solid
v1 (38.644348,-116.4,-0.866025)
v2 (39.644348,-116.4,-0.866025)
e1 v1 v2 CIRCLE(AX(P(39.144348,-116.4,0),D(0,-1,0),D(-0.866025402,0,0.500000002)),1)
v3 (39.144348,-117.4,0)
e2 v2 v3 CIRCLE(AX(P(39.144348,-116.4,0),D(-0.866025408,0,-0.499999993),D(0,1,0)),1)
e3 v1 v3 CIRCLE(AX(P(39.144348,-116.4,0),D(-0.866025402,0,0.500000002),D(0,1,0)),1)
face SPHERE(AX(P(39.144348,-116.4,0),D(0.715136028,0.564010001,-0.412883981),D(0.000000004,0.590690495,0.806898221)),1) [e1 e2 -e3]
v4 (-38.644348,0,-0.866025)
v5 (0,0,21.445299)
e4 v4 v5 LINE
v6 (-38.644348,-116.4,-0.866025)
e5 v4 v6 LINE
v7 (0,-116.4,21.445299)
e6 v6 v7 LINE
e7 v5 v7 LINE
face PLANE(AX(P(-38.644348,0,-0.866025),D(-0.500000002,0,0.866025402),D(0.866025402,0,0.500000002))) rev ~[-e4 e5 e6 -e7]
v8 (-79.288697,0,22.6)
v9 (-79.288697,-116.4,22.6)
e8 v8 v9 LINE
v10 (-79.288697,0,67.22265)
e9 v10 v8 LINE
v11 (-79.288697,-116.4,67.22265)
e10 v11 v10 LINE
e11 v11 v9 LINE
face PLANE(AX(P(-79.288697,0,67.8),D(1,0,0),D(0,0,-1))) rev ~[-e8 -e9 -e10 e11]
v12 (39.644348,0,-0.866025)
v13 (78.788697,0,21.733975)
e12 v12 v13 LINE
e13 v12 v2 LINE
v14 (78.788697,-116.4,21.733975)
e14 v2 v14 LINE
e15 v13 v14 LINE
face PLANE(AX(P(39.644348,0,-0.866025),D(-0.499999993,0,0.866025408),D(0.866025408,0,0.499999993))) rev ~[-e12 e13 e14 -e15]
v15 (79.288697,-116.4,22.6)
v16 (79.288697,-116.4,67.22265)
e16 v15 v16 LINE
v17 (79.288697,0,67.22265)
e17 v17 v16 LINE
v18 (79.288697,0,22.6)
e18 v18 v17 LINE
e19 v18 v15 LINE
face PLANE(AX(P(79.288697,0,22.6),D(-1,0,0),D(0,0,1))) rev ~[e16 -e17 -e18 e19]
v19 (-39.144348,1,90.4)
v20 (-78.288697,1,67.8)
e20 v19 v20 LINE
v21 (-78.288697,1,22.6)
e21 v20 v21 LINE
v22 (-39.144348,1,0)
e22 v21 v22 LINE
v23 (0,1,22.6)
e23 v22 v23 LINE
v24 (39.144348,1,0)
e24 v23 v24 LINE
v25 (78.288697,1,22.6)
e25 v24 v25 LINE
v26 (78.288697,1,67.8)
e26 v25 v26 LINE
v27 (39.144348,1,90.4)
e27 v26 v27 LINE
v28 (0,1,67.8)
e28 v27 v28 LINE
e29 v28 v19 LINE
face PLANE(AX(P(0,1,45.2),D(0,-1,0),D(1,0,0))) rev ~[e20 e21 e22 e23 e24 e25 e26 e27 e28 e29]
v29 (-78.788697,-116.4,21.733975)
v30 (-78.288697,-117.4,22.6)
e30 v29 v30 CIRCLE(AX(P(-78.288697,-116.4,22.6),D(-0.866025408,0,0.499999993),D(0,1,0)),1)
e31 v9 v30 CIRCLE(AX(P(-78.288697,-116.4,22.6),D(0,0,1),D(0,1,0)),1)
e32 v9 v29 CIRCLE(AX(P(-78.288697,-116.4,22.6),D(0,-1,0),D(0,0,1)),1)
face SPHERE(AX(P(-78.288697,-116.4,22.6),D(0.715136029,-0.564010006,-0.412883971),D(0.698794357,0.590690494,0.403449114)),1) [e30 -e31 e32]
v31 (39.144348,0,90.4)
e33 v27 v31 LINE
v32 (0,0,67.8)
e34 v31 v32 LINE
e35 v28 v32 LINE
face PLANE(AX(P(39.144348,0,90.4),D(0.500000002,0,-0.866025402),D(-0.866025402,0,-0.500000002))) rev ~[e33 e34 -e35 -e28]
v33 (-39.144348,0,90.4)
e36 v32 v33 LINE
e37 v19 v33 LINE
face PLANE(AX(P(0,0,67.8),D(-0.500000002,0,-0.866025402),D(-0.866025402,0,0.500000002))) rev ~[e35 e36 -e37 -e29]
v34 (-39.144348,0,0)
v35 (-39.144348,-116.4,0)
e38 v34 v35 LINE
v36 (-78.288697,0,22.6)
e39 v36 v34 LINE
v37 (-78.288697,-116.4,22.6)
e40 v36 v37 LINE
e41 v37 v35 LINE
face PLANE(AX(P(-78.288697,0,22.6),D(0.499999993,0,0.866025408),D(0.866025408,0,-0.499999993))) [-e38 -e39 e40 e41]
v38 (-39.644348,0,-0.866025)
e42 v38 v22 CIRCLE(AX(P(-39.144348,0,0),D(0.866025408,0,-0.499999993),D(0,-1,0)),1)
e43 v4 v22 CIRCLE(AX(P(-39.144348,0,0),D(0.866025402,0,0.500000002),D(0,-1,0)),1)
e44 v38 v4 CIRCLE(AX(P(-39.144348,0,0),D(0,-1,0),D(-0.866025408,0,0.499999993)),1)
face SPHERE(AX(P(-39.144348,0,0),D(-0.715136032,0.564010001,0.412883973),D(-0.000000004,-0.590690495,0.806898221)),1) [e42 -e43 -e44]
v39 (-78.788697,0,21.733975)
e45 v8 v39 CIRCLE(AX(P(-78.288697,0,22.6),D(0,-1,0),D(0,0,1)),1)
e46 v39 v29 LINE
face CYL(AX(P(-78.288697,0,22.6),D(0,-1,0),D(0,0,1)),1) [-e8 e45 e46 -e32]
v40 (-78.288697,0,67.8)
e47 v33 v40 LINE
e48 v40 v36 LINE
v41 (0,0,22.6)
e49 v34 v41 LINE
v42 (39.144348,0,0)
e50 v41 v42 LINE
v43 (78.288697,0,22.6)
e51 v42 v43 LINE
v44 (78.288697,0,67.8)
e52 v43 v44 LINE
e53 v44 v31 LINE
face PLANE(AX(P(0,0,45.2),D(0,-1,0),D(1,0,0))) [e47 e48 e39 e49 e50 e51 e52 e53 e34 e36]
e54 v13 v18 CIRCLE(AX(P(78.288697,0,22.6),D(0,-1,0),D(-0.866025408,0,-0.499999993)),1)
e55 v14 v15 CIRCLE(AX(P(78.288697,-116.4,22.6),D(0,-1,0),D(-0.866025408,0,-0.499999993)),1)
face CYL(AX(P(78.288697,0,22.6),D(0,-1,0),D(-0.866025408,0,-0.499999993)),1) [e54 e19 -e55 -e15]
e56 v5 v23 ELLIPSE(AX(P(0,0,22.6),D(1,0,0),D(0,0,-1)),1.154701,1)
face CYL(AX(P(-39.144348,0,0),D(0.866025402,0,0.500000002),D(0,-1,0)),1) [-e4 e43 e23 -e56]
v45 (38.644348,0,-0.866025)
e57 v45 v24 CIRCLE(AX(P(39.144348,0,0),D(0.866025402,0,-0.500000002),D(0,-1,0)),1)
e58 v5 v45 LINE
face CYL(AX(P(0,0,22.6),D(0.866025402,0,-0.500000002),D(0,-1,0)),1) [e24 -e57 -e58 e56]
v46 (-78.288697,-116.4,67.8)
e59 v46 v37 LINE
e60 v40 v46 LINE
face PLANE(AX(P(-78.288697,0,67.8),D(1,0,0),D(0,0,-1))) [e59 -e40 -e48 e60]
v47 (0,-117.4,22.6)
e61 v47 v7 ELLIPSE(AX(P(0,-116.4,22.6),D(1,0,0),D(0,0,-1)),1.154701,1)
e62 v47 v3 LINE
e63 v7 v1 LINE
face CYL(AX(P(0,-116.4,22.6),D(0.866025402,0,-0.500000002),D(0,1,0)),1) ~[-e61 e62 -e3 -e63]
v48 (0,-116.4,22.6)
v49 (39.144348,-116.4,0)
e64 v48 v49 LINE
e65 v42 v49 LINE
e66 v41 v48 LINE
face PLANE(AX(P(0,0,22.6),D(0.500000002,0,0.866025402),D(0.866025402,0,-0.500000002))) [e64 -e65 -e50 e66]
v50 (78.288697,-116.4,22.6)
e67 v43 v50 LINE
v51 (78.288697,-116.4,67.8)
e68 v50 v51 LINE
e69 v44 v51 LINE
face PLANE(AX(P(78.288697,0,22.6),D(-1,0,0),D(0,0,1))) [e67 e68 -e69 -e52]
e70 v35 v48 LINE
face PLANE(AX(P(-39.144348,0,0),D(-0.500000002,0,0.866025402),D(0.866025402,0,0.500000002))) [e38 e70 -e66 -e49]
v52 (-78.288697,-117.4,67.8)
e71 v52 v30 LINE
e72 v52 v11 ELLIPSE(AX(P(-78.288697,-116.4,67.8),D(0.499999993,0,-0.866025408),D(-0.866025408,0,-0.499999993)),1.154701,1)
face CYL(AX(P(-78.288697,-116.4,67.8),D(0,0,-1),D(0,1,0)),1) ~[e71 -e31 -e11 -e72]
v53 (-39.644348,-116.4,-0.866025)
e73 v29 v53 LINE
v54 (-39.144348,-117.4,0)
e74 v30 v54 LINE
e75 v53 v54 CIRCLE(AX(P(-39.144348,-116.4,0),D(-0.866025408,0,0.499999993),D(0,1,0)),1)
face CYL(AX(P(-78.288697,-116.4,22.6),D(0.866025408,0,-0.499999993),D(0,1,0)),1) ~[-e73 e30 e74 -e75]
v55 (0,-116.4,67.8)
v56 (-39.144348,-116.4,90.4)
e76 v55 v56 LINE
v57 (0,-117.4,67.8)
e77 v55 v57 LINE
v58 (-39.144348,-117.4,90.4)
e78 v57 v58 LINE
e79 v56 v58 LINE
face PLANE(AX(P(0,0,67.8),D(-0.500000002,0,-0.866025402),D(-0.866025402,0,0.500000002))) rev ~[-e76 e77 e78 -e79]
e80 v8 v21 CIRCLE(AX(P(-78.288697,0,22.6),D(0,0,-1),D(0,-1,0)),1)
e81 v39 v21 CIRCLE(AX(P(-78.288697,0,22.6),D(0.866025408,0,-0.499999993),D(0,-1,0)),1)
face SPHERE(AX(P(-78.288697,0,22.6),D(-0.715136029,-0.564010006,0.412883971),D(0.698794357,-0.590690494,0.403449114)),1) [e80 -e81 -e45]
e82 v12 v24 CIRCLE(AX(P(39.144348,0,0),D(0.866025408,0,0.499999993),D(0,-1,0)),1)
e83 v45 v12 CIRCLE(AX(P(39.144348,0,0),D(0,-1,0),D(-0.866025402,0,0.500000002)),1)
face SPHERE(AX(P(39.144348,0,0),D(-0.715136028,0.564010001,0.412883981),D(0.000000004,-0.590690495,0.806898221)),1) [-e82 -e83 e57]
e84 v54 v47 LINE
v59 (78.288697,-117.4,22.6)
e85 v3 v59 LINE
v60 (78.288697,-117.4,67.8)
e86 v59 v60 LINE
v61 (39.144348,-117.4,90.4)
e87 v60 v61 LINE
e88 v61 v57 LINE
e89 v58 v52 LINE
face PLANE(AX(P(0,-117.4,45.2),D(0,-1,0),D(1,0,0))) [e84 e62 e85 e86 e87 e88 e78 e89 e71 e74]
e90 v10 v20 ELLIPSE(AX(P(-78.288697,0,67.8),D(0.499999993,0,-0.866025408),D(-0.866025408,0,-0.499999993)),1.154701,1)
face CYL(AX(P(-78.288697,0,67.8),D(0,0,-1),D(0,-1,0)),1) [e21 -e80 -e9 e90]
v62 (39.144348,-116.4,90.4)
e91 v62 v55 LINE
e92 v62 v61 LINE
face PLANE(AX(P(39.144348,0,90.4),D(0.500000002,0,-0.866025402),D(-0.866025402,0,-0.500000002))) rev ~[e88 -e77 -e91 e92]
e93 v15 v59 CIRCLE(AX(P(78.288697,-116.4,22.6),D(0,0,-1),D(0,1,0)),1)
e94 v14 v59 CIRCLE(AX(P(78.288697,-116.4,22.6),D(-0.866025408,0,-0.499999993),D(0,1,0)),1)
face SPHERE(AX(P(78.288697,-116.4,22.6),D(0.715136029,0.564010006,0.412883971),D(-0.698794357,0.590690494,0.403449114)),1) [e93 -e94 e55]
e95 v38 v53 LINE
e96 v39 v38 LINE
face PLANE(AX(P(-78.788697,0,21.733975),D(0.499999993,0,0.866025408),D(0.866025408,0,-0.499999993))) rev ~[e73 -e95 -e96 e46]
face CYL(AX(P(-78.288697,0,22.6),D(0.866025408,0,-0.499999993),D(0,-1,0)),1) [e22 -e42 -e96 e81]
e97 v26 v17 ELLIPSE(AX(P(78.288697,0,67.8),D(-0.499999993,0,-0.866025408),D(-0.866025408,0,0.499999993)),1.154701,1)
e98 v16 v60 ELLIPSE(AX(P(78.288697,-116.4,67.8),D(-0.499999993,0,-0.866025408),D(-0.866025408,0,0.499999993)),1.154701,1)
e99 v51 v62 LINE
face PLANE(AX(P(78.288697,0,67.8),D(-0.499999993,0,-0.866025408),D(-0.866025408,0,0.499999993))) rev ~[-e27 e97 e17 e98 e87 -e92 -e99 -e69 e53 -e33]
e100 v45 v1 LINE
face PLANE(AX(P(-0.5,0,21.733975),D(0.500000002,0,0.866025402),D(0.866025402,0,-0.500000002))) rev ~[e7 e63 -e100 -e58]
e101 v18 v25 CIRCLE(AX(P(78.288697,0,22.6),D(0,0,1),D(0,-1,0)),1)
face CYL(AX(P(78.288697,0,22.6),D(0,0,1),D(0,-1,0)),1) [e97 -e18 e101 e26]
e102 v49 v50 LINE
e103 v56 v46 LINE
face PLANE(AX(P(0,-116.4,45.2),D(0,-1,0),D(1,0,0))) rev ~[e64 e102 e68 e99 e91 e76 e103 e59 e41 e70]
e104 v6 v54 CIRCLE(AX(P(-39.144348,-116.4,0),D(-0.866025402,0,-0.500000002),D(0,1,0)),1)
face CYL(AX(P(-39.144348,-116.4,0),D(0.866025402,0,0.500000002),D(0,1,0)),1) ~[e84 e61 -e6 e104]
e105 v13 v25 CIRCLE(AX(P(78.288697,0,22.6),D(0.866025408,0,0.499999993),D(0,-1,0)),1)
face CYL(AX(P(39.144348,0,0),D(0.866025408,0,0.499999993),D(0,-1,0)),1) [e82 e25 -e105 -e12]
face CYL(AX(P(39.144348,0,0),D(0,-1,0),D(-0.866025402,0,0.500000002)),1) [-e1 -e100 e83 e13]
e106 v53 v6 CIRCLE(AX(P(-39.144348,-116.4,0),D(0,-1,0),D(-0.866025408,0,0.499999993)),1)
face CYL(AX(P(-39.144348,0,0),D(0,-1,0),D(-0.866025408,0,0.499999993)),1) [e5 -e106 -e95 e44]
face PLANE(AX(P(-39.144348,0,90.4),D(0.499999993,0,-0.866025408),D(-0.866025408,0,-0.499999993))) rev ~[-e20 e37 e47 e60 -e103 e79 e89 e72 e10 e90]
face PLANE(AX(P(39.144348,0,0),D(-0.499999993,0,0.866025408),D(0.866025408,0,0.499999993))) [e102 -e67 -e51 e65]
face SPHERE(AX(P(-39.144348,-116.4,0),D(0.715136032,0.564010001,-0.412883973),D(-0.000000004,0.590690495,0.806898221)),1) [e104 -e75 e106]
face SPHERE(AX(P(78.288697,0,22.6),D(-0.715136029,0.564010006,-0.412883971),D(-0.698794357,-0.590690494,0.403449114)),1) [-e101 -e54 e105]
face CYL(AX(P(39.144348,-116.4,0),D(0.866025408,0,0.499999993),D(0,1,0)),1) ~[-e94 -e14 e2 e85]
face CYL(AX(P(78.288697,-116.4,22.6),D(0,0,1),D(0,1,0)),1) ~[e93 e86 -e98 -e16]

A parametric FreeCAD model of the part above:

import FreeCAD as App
import Part
import Sketcher

V = App.Vector
Q = App.Units.Quantity


def faces_at(feature, points):
    """Names of the faces that lie closest to the given points."""
    faces = feature.Shape.Faces
    near = lambda p: min(range(len(faces)), key=lambda i: faces[i].distToShape(Part.Vertex(*p))[0])
    return sorted({f"Face{near(p) + 1}" for p in points})

doc = App.newDocument("Part")
body = doc.addObject("PartDesign::Body", "Body")

sketch1 = doc.addObject("Sketcher::SketchObject", "Sketch")
body.addObject(sketch1)
sketch1.AttachmentSupport = (doc.XZ_Plane, [""])
sketch1.MapMode = "FlatFace"
sketch1.addGeometry([
    Part.LineSegment(V(0, 68, 0), V(-39, 90, 0)),
    Part.LineSegment(V(-39, 90, 0), V(-78, 68, 0)),
    Part.LineSegment(V(-78, 68, 0), V(-78, 23, 0)),
    Part.LineSegment(V(-78, 23, 0), V(-39, 0, 0)),
    Part.LineSegment(V(-39, 0, 0), V(0, 23, 0)),
    Part.LineSegment(V(0, 23, 0), V(39, 0, 0)),
    Part.LineSegment(V(39, 0, 0), V(78, 23, 0)),
    Part.LineSegment(V(78, 23, 0), V(78, 68, 0)),
    Part.LineSegment(V(78, 68, 0), V(39, 90, 0)),
    Part.LineSegment(V(39, 90, 0), V(0, 68, 0)),
], False)
sketch1.addConstraint([
    Sketcher.Constraint("Coincident", 0, 2, 1, 1),
    Sketcher.Constraint("Coincident", 1, 2, 2, 1),
    Sketcher.Constraint("Coincident", 2, 2, 3, 1),
    Sketcher.Constraint("Coincident", 3, 2, 4, 1),
    Sketcher.Constraint("Coincident", 4, 2, 5, 1),
    Sketcher.Constraint("Coincident", 5, 2, 6, 1),
    Sketcher.Constraint("Coincident", 6, 2, 7, 1),
    Sketcher.Constraint("Coincident", 7, 2, 8, 1),
    Sketcher.Constraint("Coincident", 8, 2, 9, 1),
    Sketcher.Constraint("Coincident", 9, 2, 0, 1),
    Sketcher.Constraint("Vertical", 2),
    Sketcher.Constraint("Vertical", 7),
    Sketcher.Constraint("Symmetric", 3, 2, 5, 2, -1, 1),
    Sketcher.Constraint("Symmetric", 2, 2, 6, 2, -2),
    Sketcher.Constraint("Symmetric", 0, 2, 8, 2, -2),
    Sketcher.Constraint("PointOnObject", 3, 2, -1),
    Sketcher.Constraint("PointOnObject", 4, 2, -2),
    Sketcher.Constraint("PointOnObject", 9, 2, -2),
    Sketcher.Constraint("Parallel", 0, 3),
    Sketcher.Constraint("Parallel", 1, 4),
    Sketcher.Constraint("Parallel", 3, 5),
    Sketcher.Constraint("Parallel", 5, 8),
    Sketcher.Constraint("Horizontal", 2, 2, 4, 2),
    Sketcher.Constraint("Horizontal", 7, 2, 9, 2),
    Sketcher.Constraint("Angle", 0, Q("150 deg")),
    Sketcher.Constraint("DistanceY", 2, 2, 2, 1, Q("45.2 mm")),
    Sketcher.Constraint("Distance", 0, Q("45.2 mm")),
])
pad1 = doc.addObject("PartDesign::Pad", "Pad")
body.addObject(pad1)
pad1.Profile = sketch1
pad1.Length = 116.4
doc.recompute()

thickness = doc.addObject("PartDesign::Thickness", "Thickness")
body.addObject(thickness)
thickness.Base = (pad1, faces_at(pad1, [
    (58.717, -58.2, 79.1),
    (-19.572, -58.2, 79.1),
    (19.572, -58.2, 79.1),
    (-58.717, -58.2, 79.1),
]))
thickness.Value = 1
thickness.Reversed = False
thickness.Join = "Arc"

doc.recompute()
